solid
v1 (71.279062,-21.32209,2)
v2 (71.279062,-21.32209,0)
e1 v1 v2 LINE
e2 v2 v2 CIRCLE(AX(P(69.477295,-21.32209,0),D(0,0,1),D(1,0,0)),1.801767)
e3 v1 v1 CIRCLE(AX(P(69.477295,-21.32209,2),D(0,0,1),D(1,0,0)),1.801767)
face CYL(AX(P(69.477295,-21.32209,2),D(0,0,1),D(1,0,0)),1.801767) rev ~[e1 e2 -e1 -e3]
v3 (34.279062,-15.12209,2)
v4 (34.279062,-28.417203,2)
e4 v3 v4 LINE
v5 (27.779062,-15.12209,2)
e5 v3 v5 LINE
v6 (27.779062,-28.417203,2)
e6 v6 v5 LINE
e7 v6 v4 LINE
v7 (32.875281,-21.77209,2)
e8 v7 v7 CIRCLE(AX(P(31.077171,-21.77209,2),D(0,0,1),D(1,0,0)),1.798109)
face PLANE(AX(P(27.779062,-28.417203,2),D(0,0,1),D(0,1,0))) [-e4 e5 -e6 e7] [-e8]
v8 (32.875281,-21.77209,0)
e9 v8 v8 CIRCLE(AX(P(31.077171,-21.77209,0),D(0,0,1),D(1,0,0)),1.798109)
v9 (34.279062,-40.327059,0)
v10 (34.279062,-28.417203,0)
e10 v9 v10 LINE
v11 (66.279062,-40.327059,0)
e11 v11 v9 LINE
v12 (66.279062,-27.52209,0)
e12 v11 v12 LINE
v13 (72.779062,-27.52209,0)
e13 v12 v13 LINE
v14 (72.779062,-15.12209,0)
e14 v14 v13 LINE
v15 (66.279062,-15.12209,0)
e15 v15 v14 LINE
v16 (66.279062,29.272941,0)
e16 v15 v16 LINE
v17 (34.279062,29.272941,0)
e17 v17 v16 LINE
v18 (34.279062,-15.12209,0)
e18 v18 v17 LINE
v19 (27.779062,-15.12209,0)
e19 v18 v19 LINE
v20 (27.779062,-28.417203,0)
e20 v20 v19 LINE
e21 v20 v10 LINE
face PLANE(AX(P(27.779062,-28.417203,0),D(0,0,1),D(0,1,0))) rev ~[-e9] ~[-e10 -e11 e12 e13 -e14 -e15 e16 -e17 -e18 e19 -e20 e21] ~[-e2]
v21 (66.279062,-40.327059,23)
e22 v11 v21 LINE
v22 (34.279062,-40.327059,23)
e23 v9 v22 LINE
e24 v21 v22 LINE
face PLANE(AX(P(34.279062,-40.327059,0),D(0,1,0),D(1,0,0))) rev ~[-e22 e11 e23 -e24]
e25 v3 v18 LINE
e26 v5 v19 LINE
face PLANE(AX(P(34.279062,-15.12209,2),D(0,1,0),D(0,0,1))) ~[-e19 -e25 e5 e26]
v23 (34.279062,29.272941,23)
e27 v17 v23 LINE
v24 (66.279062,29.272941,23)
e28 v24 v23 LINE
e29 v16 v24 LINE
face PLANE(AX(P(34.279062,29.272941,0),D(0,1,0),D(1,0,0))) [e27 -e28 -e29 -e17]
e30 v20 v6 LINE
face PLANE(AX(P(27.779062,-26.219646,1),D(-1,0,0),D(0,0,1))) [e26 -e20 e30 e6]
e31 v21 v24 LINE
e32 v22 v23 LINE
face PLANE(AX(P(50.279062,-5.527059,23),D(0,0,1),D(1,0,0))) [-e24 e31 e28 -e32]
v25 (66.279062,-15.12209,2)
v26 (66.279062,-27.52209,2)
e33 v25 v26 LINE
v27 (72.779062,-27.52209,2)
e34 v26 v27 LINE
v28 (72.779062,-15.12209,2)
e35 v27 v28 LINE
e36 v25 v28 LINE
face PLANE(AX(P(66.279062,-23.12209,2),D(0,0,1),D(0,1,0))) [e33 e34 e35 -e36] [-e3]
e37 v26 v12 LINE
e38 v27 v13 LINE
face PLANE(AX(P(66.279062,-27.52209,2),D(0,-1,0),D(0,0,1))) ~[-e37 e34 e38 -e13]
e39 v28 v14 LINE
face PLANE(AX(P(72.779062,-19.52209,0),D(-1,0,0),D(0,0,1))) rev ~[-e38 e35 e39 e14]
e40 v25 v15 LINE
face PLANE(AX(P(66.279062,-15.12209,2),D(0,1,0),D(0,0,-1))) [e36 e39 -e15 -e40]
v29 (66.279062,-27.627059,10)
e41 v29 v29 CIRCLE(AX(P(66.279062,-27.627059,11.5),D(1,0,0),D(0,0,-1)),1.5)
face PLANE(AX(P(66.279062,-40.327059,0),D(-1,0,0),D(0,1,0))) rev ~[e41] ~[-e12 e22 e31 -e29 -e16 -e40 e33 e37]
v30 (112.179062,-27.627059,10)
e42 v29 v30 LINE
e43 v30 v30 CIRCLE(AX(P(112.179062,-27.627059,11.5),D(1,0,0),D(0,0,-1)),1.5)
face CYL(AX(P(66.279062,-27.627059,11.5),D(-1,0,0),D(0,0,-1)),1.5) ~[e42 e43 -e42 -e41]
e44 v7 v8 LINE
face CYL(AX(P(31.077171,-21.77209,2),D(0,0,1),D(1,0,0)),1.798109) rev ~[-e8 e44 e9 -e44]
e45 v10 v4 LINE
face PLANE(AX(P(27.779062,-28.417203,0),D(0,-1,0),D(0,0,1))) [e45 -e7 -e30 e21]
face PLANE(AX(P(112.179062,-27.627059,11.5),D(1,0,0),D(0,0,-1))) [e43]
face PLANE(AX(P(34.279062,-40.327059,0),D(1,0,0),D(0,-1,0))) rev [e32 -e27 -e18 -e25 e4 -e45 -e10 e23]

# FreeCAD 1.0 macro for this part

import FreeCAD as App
import Part
import Sketcher
from FreeCAD import Vector
Q = App.Units.Quantity

doc = App.newDocument("Part")
body = doc.addObject("PartDesign::Body", "Body")

# Sketch on XY plane
sketch1 = body.newObject("Sketcher::SketchObject", "Sketch")
sketch1.AttachmentSupport = (doc.getObject("XY_Plane"), [""])
sketch1.MapMode = "FlatFace"
sketch1.addGeometry(Part.LineSegment(Vector(34, 29, 0), Vector(34, -40, 0)), False)
sketch1.addGeometry(Part.LineSegment(Vector(34, -40, 0), Vector(66, -40, 0)), False)
sketch1.addGeometry(Part.LineSegment(Vector(66, -40, 0), Vector(66, 29, 0)), False)
sketch1.addGeometry(Part.LineSegment(Vector(66, 29, 0), Vector(34, 29, 0)), False)
sketch1.addConstraint(Sketcher.Constraint("Coincident", 0, 2, 1, 1))
sketch1.addConstraint(Sketcher.Constraint("Coincident", 1, 2, 2, 1))
sketch1.addConstraint(Sketcher.Constraint("Coincident", 2, 2, 3, 1))
sketch1.addConstraint(Sketcher.Constraint("Coincident", 3, 2, 0, 1))
sketch1.addConstraint(Sketcher.Constraint("Vertical", 0))
sketch1.addConstraint(Sketcher.Constraint("Horizontal", 1))
sketch1.addConstraint(Sketcher.Constraint("Vertical", 2))
sketch1.addConstraint(Sketcher.Constraint("Horizontal", 3))
sketch1.addConstraint(Sketcher.Constraint("DistanceX", 1, 1, 1, 2, Q("32 mm")))
sketch1.addConstraint(Sketcher.Constraint("DistanceY", 0, 2, 0, 1, Q("69.6 mm")))
sketch1.addConstraint(Sketcher.Constraint("DistanceY", 0, 2, -1, 1, Q("40.327059 mm")))
sketch1.addConstraint(Sketcher.Constraint("DistanceX", -1, 1, 0, 2, Q("34.279062 mm")))
pad1 = body.newObject("PartDesign::Pad", "Pad")
pad1.Profile = sketch1
pad1.Length = 23

# Sketch on YZ plane
sketch2 = body.newObject("Sketcher::SketchObject", "Sketch001")
sketch2.AttachmentSupport = (doc.getObject("YZ_Plane"), [""])
sketch2.MapMode = "FlatFace"
sketch2.AttachmentOffset = App.Placement(Vector(0, 0, 66.279062), App.Rotation())
sketch2.addGeometry(Part.Circle(Vector(-27.6, 11.5, 0), Vector(0, 0, 1), 1.5), False)
sketch2.addConstraint(Sketcher.Constraint("Diameter", 0, Q("3 mm")))
sketch2.addConstraint(Sketcher.Constraint("DistanceY", -1, 1, 0, 3, Q("11.5 mm")))
sketch2.addConstraint(Sketcher.Constraint("DistanceX", 0, 3, -1, 1, Q("27.627059 mm")))
pad2 = body.newObject("PartDesign::Pad", "Pad001")
pad2.Profile = sketch2
pad2.Length = 45.9

# Sketch on YZ plane
sketch3 = body.newObject("Sketcher::SketchObject", "Sketch002")
sketch3.AttachmentSupport = (doc.getObject("YZ_Plane"), [""])
sketch3.MapMode = "FlatFace"
sketch3.AttachmentOffset = App.Placement(Vector(0, 0, 66.279062), App.Rotation())
sketch3.addGeometry(Part.LineSegment(Vector(-19.5, 2, 0), Vector(-23.1, 2, 0)), False)
sketch3.addGeometry(Part.LineSegment(Vector(-23.1, 2, 0), Vector(-23.1, 0, 0)), False)
sketch3.addGeometry(Part.LineSegment(Vector(-23.1, 0, 0), Vector(-19.5, 0, 0)), False)
sketch3.addGeometry(Part.LineSegment(Vector(-19.5, 0, 0), Vector(-19.5, 2, 0)), False)
sketch3.addConstraint(Sketcher.Constraint("Coincident", 0, 2, 1, 1))
sketch3.addConstraint(Sketcher.Constraint("Coincident", 1, 2, 2, 1))
sketch3.addConstraint(Sketcher.Constraint("Coincident", 2, 2, 3, 1))
sketch3.addConstraint(Sketcher.Constraint("Coincident", 3, 2, 0, 1))
sketch3.addConstraint(Sketcher.Constraint("Horizontal", 0))
sketch3.addConstraint(Sketcher.Constraint("Vertical", 1))
sketch3.addConstraint(Sketcher.Constraint("Horizontal", 2))
sketch3.addConstraint(Sketcher.Constraint("Vertical", 3))
sketch3.addConstraint(Sketcher.Constraint("PointOnObject", 1, 2, -1))
sketch3.addConstraint(Sketcher.Constraint("DistanceY", 1, 2, 1, 1, Q("2 mm")))
sketch3.addConstraint(Sketcher.Constraint("DistanceX", 0, 2, 0, 1, Q("3.6 mm")))
sketch3.addConstraint(Sketcher.Constraint("DistanceX", 0, 2, -1, 1, Q("23.12209 mm")))
pad3 = body.newObject("PartDesign::Pad", "Pad002")
pad3.Profile = sketch3
pad3.Length = 4.5

# Sketch on XZ plane
sketch4 = body.newObject("Sketcher::SketchObject", "Sketch003")
sketch4.AttachmentSupport = (doc.getObject("XZ_Plane"), [""])
sketch4.MapMode = "FlatFace"
sketch4.AttachmentOffset = App.Placement(Vector(0, 0, -29.272941), App.Rotation())
sketch4.addGeometry(Part.LineSegment(Vector(34, 0, 0), Vector(34, 23, 0)), False)
sketch4.addGeometry(Part.LineSegment(Vector(34, 23, 0), Vector(50, 23, 0)), False)
sketch4.addGeometry(Part.LineSegment(Vector(50, 23, 0), Vector(50, 0, 0)), False)
sketch4.addGeometry(Part.LineSegment(Vector(50, 0, 0), Vector(34, 0, 0)), False)
sketch4.addConstraint(Sketcher.Constraint("Coincident", 0, 2, 1, 1))
sketch4.addConstraint(Sketcher.Constraint("Coincident", 1, 2, 2, 1))
sketch4.addConstraint(Sketcher.Constraint("Coincident", 2, 2, 3, 1))
sketch4.addConstraint(Sketcher.Constraint("Coincident", 3, 2, 0, 1))
sketch4.addConstraint(Sketcher.Constraint("Vertical", 0))
sketch4.addConstraint(Sketcher.Constraint("Horizontal", 1))
sketch4.addConstraint(Sketcher.Constraint("Vertical", 2))
sketch4.addConstraint(Sketcher.Constraint("Horizontal", 3))
sketch4.addConstraint(Sketcher.Constraint("PointOnObject", 2, 2, -1))
sketch4.addConstraint(Sketcher.Constraint("DistanceX", 1, 1, 1, 2, Q("16 mm")))
sketch4.addConstraint(Sketcher.Constraint("DistanceY", 0, 1, 0, 2, Q("23 mm")))
sketch4.addConstraint(Sketcher.Constraint("DistanceX", -1, 1, 0, 2, Q("34.279062 mm")))
pocket1 = body.newObject("PartDesign::Pocket", "Pocket")
pocket1.Profile = sketch4
pocket1.Length = 71.5
pocket1.Reversed = True

# Sketch on XY plane
sketch5 = body.newObject("Sketcher::SketchObject", "Sketch004")
sketch5.AttachmentSupport = (doc.getObject("XY_Plane"), [""])
sketch5.MapMode = "FlatFace"
sketch5.AttachmentOffset = App.Placement(Vector(0, 0, 2), App.Rotation())
sketch5.addGeometry(Part.LineSegment(Vector(66.3, -19.5, 0), Vector(66.3, -23.1, 0)), False)
sketch5.addGeometry(Part.LineSegment(Vector(66.3, -23.1, 0), Vector(70.8, -23.1, 0)), False)
sketch5.addGeometry(Part.LineSegment(Vector(70.8, -23.1, 0), Vector(70.8, -19.5, 0)), False)
sketch5.addGeometry(Part.LineSegment(Vector(70.8, -19.5, 0), Vector(66.3, -19.5, 0)), False)
sketch5.addConstraint(Sketcher.Constraint("Coincident", 0, 2, 1, 1))
sketch5.addConstraint(Sketcher.Constraint("Coincident", 1, 2, 2, 1))
sketch5.addConstraint(Sketcher.Constraint("Coincident", 2, 2, 3, 1))
sketch5.addConstraint(Sketcher.Constraint("Coincident", 3, 2, 0, 1))
sketch5.addConstraint(Sketcher.Constraint("Vertical", 0))
sketch5.addConstraint(Sketcher.Constraint("Horizontal", 1))
sketch5.addConstraint(Sketcher.Constraint("Vertical", 2))
sketch5.addConstraint(Sketcher.Constraint("Horizontal", 3))
sketch5.addConstraint(Sketcher.Constraint("DistanceX", 1, 1, 1, 2, Q("4.5 mm")))
sketch5.addConstraint(Sketcher.Constraint("DistanceY", 0, 2, 0, 1, Q("3.6 mm")))
sketch5.addConstraint(Sketcher.Constraint("DistanceY", 0, 2, -1, 1, Q("23.12209 mm")))
sketch5.addConstraint(Sketcher.Constraint("DistanceX", -1, 1, 0, 2, Q("66.279062 mm")))
pocket2 = body.newObject("PartDesign::Pocket", "Pocket001")
pocket2.Profile = sketch5
pocket2.Length = 1

# Sketch on YZ plane
sketch6 = body.newObject("Sketcher::SketchObject", "Sketch005")
sketch6.AttachmentSupport = (doc.getObject("YZ_Plane"), [""])
sketch6.MapMode = "FlatFace"
sketch6.AttachmentOffset = App.Placement(Vector(0, 0, 66.279062), App.Rotation())
sketch6.addGeometry(Part.LineSegment(Vector(-15.1, 2, 0), Vector(-19.5, 2, 0)), False)
sketch6.addGeometry(Part.LineSegment(Vector(-19.5, 2, 0), Vector(-19.5, 0, 0)), False)
sketch6.addGeometry(Part.LineSegment(Vector(-19.5, 0, 0), Vector(-15.1, 0, 0)), False)
sketch6.addGeometry(Part.LineSegment(Vector(-15.1, 0, 0), Vector(-15.1, 2, 0)), False)
sketch6.addConstraint(Sketcher.Constraint("Coincident", 0, 2, 1, 1))
sketch6.addConstraint(Sketcher.Constraint("Coincident", 1, 2, 2, 1))
sketch6.addConstraint(Sketcher.Constraint("Coincident", 2, 2, 3, 1))
sketch6.addConstraint(Sketcher.Constraint("Coincident", 3, 2, 0, 1))
sketch6.addConstraint(Sketcher.Constraint("Horizontal", 0))
sketch6.addConstraint(Sketcher.Constraint("Vertical", 1))
sketch6.addConstraint(Sketcher.Constraint("Horizontal", 2))
sketch6.addConstraint(Sketcher.Constraint("Vertical", 3))
sketch6.addConstraint(Sketcher.Constraint("PointOnObject", 1, 2, -1))
sketch6.addConstraint(Sketcher.Constraint("DistanceY", 1, 2, 1, 1, Q("2 mm")))
sketch6.addConstraint(Sketcher.Constraint("DistanceX", 0, 2, 0, 1, Q("4.4 mm")))
sketch6.addConstraint(Sketcher.Constraint("DistanceX", 0, 2, -1, 1, Q("19.52209 mm")))
pad4 = body.newObject("PartDesign::Pad", "Pad003")
pad4.Profile = sketch6
pad4.Length = 6.5

# Sketch on YZ plane
sketch7 = body.newObject("Sketcher::SketchObject", "Sketch006")
sketch7.AttachmentSupport = (doc.getObject("YZ_Plane"), [""])
sketch7.MapMode = "FlatFace"
sketch7.AttachmentOffset = App.Placement(Vector(0, 0, 70.779062), App.Rotation())
sketch7.addGeometry(Part.LineSegment(Vector(-21.3, 1, 0), Vector(-23.1, 1, 0)), False)
sketch7.addGeometry(Part.LineSegment(Vector(-23.1, 1, 0), Vector(-23.1, 0, 0)), False)
sketch7.addGeometry(Part.LineSegment(Vector(-23.1, 0, 0), Vector(-21.3, 0, 0)), False)
sketch7.addGeometry(Part.LineSegment(Vector(-21.3, 0, 0), Vector(-21.3, 1, 0)), False)
sketch7.addConstraint(Sketcher.Constraint("Coincident", 0, 2, 1, 1))
sketch7.addConstraint(Sketcher.Constraint("Coincident", 1, 2, 2, 1))
sketch7.addConstraint(Sketcher.Constraint("Coincident", 2, 2, 3, 1))
sketch7.addConstraint(Sketcher.Constraint("Coincident", 3, 2, 0, 1))
sketch7.addConstraint(Sketcher.Constraint("Horizontal", 0))
sketch7.addConstraint(Sketcher.Constraint("Vertical", 1))
sketch7.addConstraint(Sketcher.Constraint("Horizontal", 2))
sketch7.addConstraint(Sketcher.Constraint("Vertical", 3))
sketch7.addConstraint(Sketcher.Constraint("PointOnObject", 1, 2, -1))
sketch7.addConstraint(Sketcher.Constraint("DistanceY", 1, 2, 1, 1, Q("1 mm")))
sketch7.addConstraint(Sketcher.Constraint("DistanceX", 0, 2, 0, 1, Q("1.8 mm")))
sketch7.addConstraint(Sketcher.Constraint("DistanceX", 0, 2, -1, 1, Q("23.12209 mm")))
pocket3 = body.newObject("PartDesign::Pocket", "Pocket002")
pocket3.Profile = sketch7
pocket3.Length = 4.5
doc.recompute()

datumplane = body.newObject("PartDesign::Plane", "DatumPlane")
datumplane.AttachmentSupport = (doc.getObject("XZ_Plane"), [""])
datumplane.MapMode = "FlatFace"
datumplane.AttachmentOffset = App.Placement(Vector(0, 0, 21.32209), App.Rotation())
mirrored = body.newObject("PartDesign::Mirrored", "Mirrored")
mirrored.Originals = [pad4, pocket3]
mirrored.MirrorPlane = (datumplane, [""])
body.Tip = mirrored

# Sketch on XZ plane
sketch8 = body.newObject("Sketcher::SketchObject", "Sketch007")
sketch8.AttachmentSupport = (doc.getObject("XZ_Plane"), [""])
sketch8.MapMode = "FlatFace"
sketch8.AttachmentOffset = App.Placement(Vector(0, 0, 19.52209), App.Rotation())
sketch8.addGeometry(Part.LineSegment(Vector(71.3, 2, 0), Vector(71.3, 0, 0)), False)
sketch8.addGeometry(Part.LineSegment(Vector(71.3, 0, 0), Vector(72.8, 0, 0)), False)
sketch8.addGeometry(Part.LineSegment(Vector(72.8, 0, 0), Vector(72.8, 2, 0)), False)
sketch8.addGeometry(Part.LineSegment(Vector(72.8, 2, 0), Vector(71.3, 2, 0)), False)
sketch8.addConstraint(Sketcher.Constraint("Coincident", 0, 2, 1, 1))
sketch8.addConstraint(Sketcher.Constraint("Coincident", 1, 2, 2, 1))
sketch8.addConstraint(Sketcher.Constraint("Coincident", 2, 2, 3, 1))
sketch8.addConstraint(Sketcher.Constraint("Coincident", 3, 2, 0, 1))
sketch8.addConstraint(Sketcher.Constraint("Vertical", 0))
sketch8.addConstraint(Sketcher.Constraint("Horizontal", 1))
sketch8.addConstraint(Sketcher.Constraint("Vertical", 2))
sketch8.addConstraint(Sketcher.Constraint("Horizontal", 3))
sketch8.addConstraint(Sketcher.Constraint("PointOnObject", 0, 2, -1))
sketch8.addConstraint(Sketcher.Constraint("DistanceY", 0, 2, 0, 1, Q("2 mm")))
sketch8.addConstraint(Sketcher.Constraint("DistanceX", 1, 1, 1, 2, Q("1.5 mm")))
sketch8.addConstraint(Sketcher.Constraint("DistanceX", -1, 1, 0, 2, Q("71.279062 mm")))
pad5 = body.newObject("PartDesign::Pad", "Pad004")
pad5.Profile = sketch8
pad5.Length = 4.5
doc.recompute()

datumplane2 = body.newObject("PartDesign::Plane", "DatumPlane001")
datumplane2.AttachmentSupport = (doc.getObject("YZ_Plane"), [""])
datumplane2.MapMode = "FlatFace"
datumplane2.AttachmentOffset = App.Placement(Vector(0, 0, 50.279062), App.Rotation())
mirrored2 = body.newObject("PartDesign::Mirrored", "Mirrored001")
mirrored2.Originals = [pad1, pad2, pad4, pad5]
mirrored2.MirrorPlane = (datumplane2, [""])
body.Tip = mirrored2

# Sketch on YZ plane
sketch9 = body.newObject("Sketcher::SketchObject", "Sketch008")
sketch9.AttachmentSupport = (doc.getObject("YZ_Plane"), [""])
sketch9.MapMode = "FlatFace"
sketch9.AttachmentOffset = App.Placement(Vector(0, 0, 27.779062), App.Rotation())
sketch9.addGeometry(Part.LineSegment(Vector(-24, 0, 0), Vector(-28.4, 0, 0)), False)
sketch9.addGeometry(Part.LineSegment(Vector(-28.4, 0, 0), Vector(-28.4, 2, 0)), False)
sketch9.addGeometry(Part.LineSegment(Vector(-28.4, 2, 0), Vector(-24, 2, 0)), False)
sketch9.addGeometry(Part.LineSegment(Vector(-24, 2, 0), Vector(-24, 0, 0)), False)
sketch9.addConstraint(Sketcher.Constraint("Coincident", 0, 2, 1, 1))
sketch9.addConstraint(Sketcher.Constraint("Coincident", 1, 2, 2, 1))
sketch9.addConstraint(Sketcher.Constraint("Coincident", 2, 2, 3, 1))
sketch9.addConstraint(Sketcher.Constraint("Coincident", 3, 2, 0, 1))
sketch9.addConstraint(Sketcher.Constraint("Horizontal", 0))
sketch9.addConstraint(Sketcher.Constraint("Vertical", 1))
sketch9.addConstraint(Sketcher.Constraint("Horizontal", 2))
sketch9.addConstraint(Sketcher.Constraint("Vertical", 3))
sketch9.addConstraint(Sketcher.Constraint("PointOnObject", 0, 2, -1))
sketch9.addConstraint(Sketcher.Constraint("DistanceY", 1, 1, 1, 2, Q("2 mm")))
sketch9.addConstraint(Sketcher.Constraint("DistanceX", 0, 2, 0, 1, Q("4.395113 mm")))
sketch9.addConstraint(Sketcher.Constraint("DistanceX", 2, 2, -1, 1, Q("24.02209 mm")))
pad6 = body.newObject("PartDesign::Pad", "Pad005")
pad6.Profile = sketch9
pad6.Length = 7.5

# Sketch on YZ plane
sketch10 = body.newObject("Sketcher::SketchObject", "Sketch009")
sketch10.AttachmentSupport = (doc.getObject("YZ_Plane"), [""])
sketch10.MapMode = "FlatFace"
sketch10.AttachmentOffset = App.Placement(Vector(0, 0, 66.279062), App.Rotation())
sketch10.addGeometry(Part.LineSegment(Vector(-19.5, 2, 0), Vector(-23.1, 2, 0)), False)
sketch10.addGeometry(Part.LineSegment(Vector(-23.1, 2, 0), Vector(-23.1, 0, 0)), False)
sketch10.addGeometry(Part.LineSegment(Vector(-23.1, 0, 0), Vector(-19.5, 0, 0)), False)
sketch10.addGeometry(Part.LineSegment(Vector(-19.5, 0, 0), Vector(-19.5, 2, 0)), False)
sketch10.addConstraint(Sketcher.Constraint("Coincident", 0, 2, 1, 1))
sketch10.addConstraint(Sketcher.Constraint("Coincident", 1, 2, 2, 1))
sketch10.addConstraint(Sketcher.Constraint("Coincident", 2, 2, 3, 1))
sketch10.addConstraint(Sketcher.Constraint("Coincident", 3, 2, 0, 1))
sketch10.addConstraint(Sketcher.Constraint("Horizontal", 0))
sketch10.addConstraint(Sketcher.Constraint("Vertical", 1))
sketch10.addConstraint(Sketcher.Constraint("Horizontal", 2))
sketch10.addConstraint(Sketcher.Constraint("Vertical", 3))
sketch10.addConstraint(Sketcher.Constraint("PointOnObject", 1, 2, -1))
sketch10.addConstraint(Sketcher.Constraint("DistanceY", 1, 2, 1, 1, Q("2 mm")))
sketch10.addConstraint(Sketcher.Constraint("DistanceX", 0, 2, 0, 1, Q("3.6 mm")))
sketch10.addConstraint(Sketcher.Constraint("DistanceX", 0, 2, -1, 1, Q("23.12209 mm")))
pad7 = body.newObject("PartDesign::Pad", "Pad006")
pad7.Profile = sketch10
pad7.Length = 6

# Sketch on XY plane
sketch11 = body.newObject("Sketcher::SketchObject", "Sketch010")
sketch11.AttachmentSupport = (doc.getObject("XY_Plane"), [""])
sketch11.MapMode = "FlatFace"
sketch11.AttachmentOffset = App.Placement(Vector(0, 0, 2), App.Rotation())
sketch11.addGeometry(Part.Circle(Vector(69.5, -21.3, 0), Vector(0, 0, 1), 1.8), False)
sketch11.addConstraint(Sketcher.Constraint("Diameter", 0, Q("3.603534 mm")))
sketch11.addConstraint(Sketcher.Constraint("DistanceY", 0, 3, -1, 1, Q("21.32209 mm")))
sketch11.addConstraint(Sketcher.Constraint("DistanceX", -1, 1, 0, 3, Q("69.477295 mm")))
pocket4 = body.newObject("PartDesign::Pocket", "Pocket003")
pocket4.Profile = sketch11
pocket4.Length = 6

# Sketch on YZ plane
sketch12 = body.newObject("Sketcher::SketchObject", "Sketch011")
sketch12.AttachmentSupport = (doc.getObject("YZ_Plane"), [""])
sketch12.MapMode = "FlatFace"
sketch12.AttachmentOffset = App.Placement(Vector(0, 0, 34.279062), App.Rotation())
sketch12.addGeometry(Part.LineSegment(Vector(-19.5, 0, 0), Vector(-24, 0, 0)), False)
sketch12.addGeometry(Part.LineSegment(Vector(-24, 0, 0), Vector(-24, 2, 0)), False)
sketch12.addGeometry(Part.LineSegment(Vector(-24, 2, 0), Vector(-19.5, 2, 0)), False)
sketch12.addGeometry(Part.LineSegment(Vector(-19.5, 2, 0), Vector(-19.5, 0, 0)), False)
sketch12.addConstraint(Sketcher.Constraint("Coincident", 0, 2, 1, 1))
sketch12.addConstraint(Sketcher.Constraint("Coincident", 1, 2, 2, 1))
sketch12.addConstraint(Sketcher.Constraint("Coincident", 2, 2, 3, 1))
sketch12.addConstraint(Sketcher.Constraint("Coincident", 3, 2, 0, 1))
sketch12.addConstraint(Sketcher.Constraint("Horizontal", 0))
sketch12.addConstraint(Sketcher.Constraint("Vertical", 1))
sketch12.addConstraint(Sketcher.Constraint("Horizontal", 2))
sketch12.addConstraint(Sketcher.Constraint("Vertical", 3))
sketch12.addConstraint(Sketcher.Constraint("PointOnObject", 0, 2, -1))
sketch12.addConstraint(Sketcher.Constraint("DistanceY", 1, 1, 1, 2, Q("2 mm")))
sketch12.addConstraint(Sketcher.Constraint("DistanceX", 0, 2, 0, 1, Q("4.5 mm")))
sketch12.addConstraint(Sketcher.Constraint("DistanceX", 0, 2, -1, 1, Q("24.02209 mm")))
pad8 = body.newObject("PartDesign::Pad", "Pad007")
pad8.Profile = sketch12
pad8.Length = 6
pad8.Reversed = True

# Sketch on XY plane
sketch13 = body.newObject("Sketcher::SketchObject", "Sketch012")
sketch13.AttachmentSupport = (doc.getObject("XY_Plane"), [""])
sketch13.MapMode = "FlatFace"
sketch13.AttachmentOffset = App.Placement(Vector(0, 0, 2), App.Rotation())
sketch13.addGeometry(Part.Circle(Vector(31.1, -21.8, 0), Vector(0, 0, 1), 1.8), False)
sketch13.addConstraint(Sketcher.Constraint("Diameter", 0, Q("3.596219 mm")))
sketch13.addConstraint(Sketcher.Constraint("DistanceX", -1, 1, 0, 3, Q("31.077171 mm")))
sketch13.addConstraint(Sketcher.Constraint("DistanceY", 0, 3, -1, 1, Q("21.77209 mm")))
pocket5 = body.newObject("PartDesign::Pocket", "Pocket004")
pocket5.Profile = sketch13
pocket5.Length = 6

# Sketch on YZ plane
sketch14 = body.newObject("Sketcher::SketchObject", "Sketch013")
sketch14.AttachmentSupport = (doc.getObject("YZ_Plane"), [""])
sketch14.MapMode = "FlatFace"
sketch14.AttachmentOffset = App.Placement(Vector(0, 0, -11.620938), App.Rotation())
sketch14.addGeometry(Part.Circle(Vector(-27.6, 11.5, 0), Vector(0, 0, 1), 1.5), False)
sketch14.addConstraint(Sketcher.Constraint("Diameter", 0, Q("3 mm")))
sketch14.addConstraint(Sketcher.Constraint("DistanceY", -1, 1, 0, 3, Q("11.5 mm")))
sketch14.addConstraint(Sketcher.Constraint("DistanceX", 0, 3, -1, 1, Q("27.627059 mm")))
pocket6 = body.newObject("PartDesign::Pocket", "Pocket005")
pocket6.Profile = sketch14
pocket6.Length = 45.9
pocket6.Reversed = True

doc.recompute()
